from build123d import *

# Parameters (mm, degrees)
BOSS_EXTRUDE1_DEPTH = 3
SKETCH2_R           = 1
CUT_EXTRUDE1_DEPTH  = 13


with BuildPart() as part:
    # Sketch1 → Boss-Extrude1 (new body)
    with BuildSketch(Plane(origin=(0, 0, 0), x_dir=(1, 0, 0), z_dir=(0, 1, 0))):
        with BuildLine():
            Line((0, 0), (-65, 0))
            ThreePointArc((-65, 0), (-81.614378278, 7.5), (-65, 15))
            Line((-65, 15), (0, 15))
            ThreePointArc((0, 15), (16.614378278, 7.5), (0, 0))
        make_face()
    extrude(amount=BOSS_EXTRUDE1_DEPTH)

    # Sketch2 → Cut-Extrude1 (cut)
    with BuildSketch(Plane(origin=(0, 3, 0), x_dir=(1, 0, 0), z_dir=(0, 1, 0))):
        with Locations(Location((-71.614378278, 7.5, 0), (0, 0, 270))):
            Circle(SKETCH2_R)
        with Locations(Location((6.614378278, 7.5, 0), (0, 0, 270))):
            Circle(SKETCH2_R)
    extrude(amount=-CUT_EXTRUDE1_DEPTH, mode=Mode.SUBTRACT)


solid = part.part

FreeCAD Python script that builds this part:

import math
import FreeCAD as App
import Part
import Sketcher

V = App.Vector

doc = App.newDocument("Part")
body = doc.addObject("PartDesign::Body", "Body")

sketch1 = body.newObject("Sketcher::SketchObject", "Sketch")
sketch1.AttachmentSupport = (doc.getObject("XZ_Plane"), [""])
sketch1.MapMode = "FlatFace"
sketch1.addGeometry(Part.LineSegment(V(-65, 0, 0), V(0, 0, 0)), False)
sketch1.addGeometry(Part.ArcOfCircle(Part.Circle(V(7, -8, 0), V(0, 0, 1), 10), math.radians(-131), math.radians(131)), False)
sketch1.addGeometry(Part.LineSegment(V(0, -15, 0), V(-65, -15, 0)), False)
sketch1.addGeometry(Part.ArcOfCircle(Part.Circle(V(-72, -8, 0), V(0, 0, 1), 10), math.radians(49), math.radians(311)), False)
sketch1.addConstraint(Sketcher.Constraint("Coincident", 0, 2, 1, 2))
sketch1.addConstraint(Sketcher.Constraint("Coincident", 1, 1, 2, 1))
sketch1.addConstraint(Sketcher.Constraint("Coincident", 2, 2, 3, 2))
sketch1.addConstraint(Sketcher.Constraint("Coincident", 3, 1, 0, 1))
sketch1.addConstraint(Sketcher.Constraint("Horizontal", 0))
sketch1.addConstraint(Sketcher.Constraint("Horizontal", 2))
sketch1.addConstraint(Sketcher.Constraint("Coincident", 0, 2, -1, 1))
sketch1.addConstraint(Sketcher.Constraint("Equal", 1, 3))
sketch1.addConstraint(Sketcher.Constraint("PointOnObject", 1, 1, -2))
sketch1.addConstraint(Sketcher.Constraint("Horizontal", 1, 3, 3, 3))
sketch1.addConstraint(Sketcher.Constraint("Radius", 1, 10.0))
sketch1.addConstraint(Sketcher.Constraint("DistanceX", 0, 1, 0, 2, 65.0))
sketch1.addConstraint(Sketcher.Constraint("DistanceY", 1, 1, -1, 1, 15.0))
pad1 = body.newObject("PartDesign::Pad", "Pad")
pad1.Profile = sketch1
pad1.Length = 3
pad1.Reversed = True

sketch2 = body.newObject("Sketcher::SketchObject", "Sketch001")
sketch2.AttachmentSupport = (doc.getObject("XZ_Plane"), [""])
sketch2.MapMode = "FlatFace"
sketch2.AttachmentOffset = App.Placement(V(0, 0, -3), App.Rotation())
sketch2.addGeometry(Part.Circle(V(-71.6, -7.5, 0), V(0, 0, 1), 1), False)
sketch2.addGeometry(Part.Circle(V(6.6, -7.5, 0), V(0, 0, 1), 1), False)
sketch2.addConstraint(Sketcher.Constraint("Equal", 0, 1))
sketch2.addConstraint(Sketcher.Constraint("Horizontal", 0, 3, 1, 3))
sketch2.addConstraint(Sketcher.Constraint("Diameter", 0, 2.0))
sketch2.addConstraint(Sketcher.Constraint("DistanceY", 0, 3, -1, 1, 7.5))
sketch2.addConstraint(Sketcher.Constraint("DistanceX", 0, 3, -1, 1, 71.614378))
sketch2.addConstraint(Sketcher.Constraint("DistanceX", -1, 1, 1, 3, 6.614378))
pocket1 = body.newObject("PartDesign::Pocket", "Pocket")
pocket1.Profile = sketch2
pocket1.Length = 13
pocket1.Reversed = True

doc.recompute()
